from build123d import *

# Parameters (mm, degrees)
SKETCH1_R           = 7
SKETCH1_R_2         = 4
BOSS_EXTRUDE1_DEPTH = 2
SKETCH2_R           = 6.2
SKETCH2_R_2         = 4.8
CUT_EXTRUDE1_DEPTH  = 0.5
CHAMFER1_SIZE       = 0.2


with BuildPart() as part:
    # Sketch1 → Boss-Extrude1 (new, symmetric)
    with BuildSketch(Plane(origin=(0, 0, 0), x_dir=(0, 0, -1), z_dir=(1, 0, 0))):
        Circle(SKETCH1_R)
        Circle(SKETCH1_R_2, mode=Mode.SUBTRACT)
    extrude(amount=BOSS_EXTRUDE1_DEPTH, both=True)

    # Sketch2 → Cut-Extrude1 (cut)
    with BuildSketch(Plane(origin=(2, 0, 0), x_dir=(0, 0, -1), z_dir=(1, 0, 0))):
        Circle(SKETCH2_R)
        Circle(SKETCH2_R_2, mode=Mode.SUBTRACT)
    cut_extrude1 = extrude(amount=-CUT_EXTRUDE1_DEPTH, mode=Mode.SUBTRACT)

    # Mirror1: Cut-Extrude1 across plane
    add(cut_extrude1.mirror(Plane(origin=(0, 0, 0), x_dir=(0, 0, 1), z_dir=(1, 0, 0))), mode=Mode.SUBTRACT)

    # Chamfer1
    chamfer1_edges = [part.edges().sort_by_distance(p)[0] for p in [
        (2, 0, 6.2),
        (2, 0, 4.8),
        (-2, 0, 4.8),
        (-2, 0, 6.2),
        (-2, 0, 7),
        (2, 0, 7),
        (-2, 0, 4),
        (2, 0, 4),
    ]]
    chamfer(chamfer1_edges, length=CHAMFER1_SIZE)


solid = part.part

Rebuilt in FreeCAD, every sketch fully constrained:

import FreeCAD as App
import Part
import Sketcher
Q = App.Units.Quantity


def edges_at(feature, points):
    """Names of the edges that pass closest to the given points."""
    edges = feature.Shape.Edges
    near = lambda p: min(range(len(edges)), key=lambda i: edges[i].distToShape(Part.Vertex(*p))[0])
    return sorted({f"Edge{near(p) + 1}" for p in points})

doc = App.newDocument("Part")
body = doc.addObject("PartDesign::Body", "Body")

# Sketch on YZ plane
sketch1 = body.newObject("Sketcher::SketchObject", "Sketch")
sketch1.AttachmentSupport = (doc.getObject("YZ_Plane"), [""])
sketch1.MapMode = "FlatFace"
sketch1.addGeometry(Part.Circle(App.Vector(0, 0, 0), App.Vector(0, 0, 1), 7), False)
sketch1.addGeometry(Part.Circle(App.Vector(0, 0, 0), App.Vector(0, 0, 1), 4), False)
sketch1.addConstraint(Sketcher.Constraint("Coincident", 0, 3, -1, 1))
sketch1.addConstraint(Sketcher.Constraint("Coincident", 1, 3, -1, 1))
sketch1.addConstraint(Sketcher.Constraint("Diameter", 0, Q("14 mm")))
sketch1.addConstraint(Sketcher.Constraint("Diameter", 1, Q("8 mm")))
pad1 = body.newObject("PartDesign::Pad", "Pad")
pad1.Profile = sketch1
pad1.Length = 4
pad1.Midplane = True

# Sketch on YZ plane
sketch2 = body.newObject("Sketcher::SketchObject", "Sketch001")
sketch2.AttachmentSupport = (doc.getObject("YZ_Plane"), [""])
sketch2.MapMode = "FlatFace"
sketch2.AttachmentOffset = App.Placement(App.Vector(0, 0, 2), App.Rotation())
sketch2.addGeometry(Part.Circle(App.Vector(0, 0, 0), App.Vector(0, 0, 1), 6.2), False)
sketch2.addGeometry(Part.Circle(App.Vector(0, 0, 0), App.Vector(0, 0, 1), 4.8), False)
sketch2.addConstraint(Sketcher.Constraint("Coincident", 0, 3, -1, 1))
sketch2.addConstraint(Sketcher.Constraint("Coincident", 1, 3, -1, 1))
sketch2.addConstraint(Sketcher.Constraint("Diameter", 0, Q("12.4 mm")))
sketch2.addConstraint(Sketcher.Constraint("Diameter", 1, Q("9.6 mm")))
pocket1 = body.newObject("PartDesign::Pocket", "Pocket")
pocket1.Profile = sketch2
pocket1.Length = 0.5
doc.recompute()

mirrored = body.newObject("PartDesign::Mirrored", "Mirrored")
mirrored.Originals = [pocket1]
mirrored.MirrorPlane = (doc.getObject("YZ_Plane"), [""])
body.Tip = mirrored
doc.recompute()

chamfer = body.newObject("PartDesign::Chamfer", "Chamfer")
chamfer.Base = (mirrored, edges_at(mirrored, [
    (2, 0, 6.2),
    (2, 0, 4.8),
    (-2, 0, 4.8),
    (-2, 0, 6.2),
    (-2, 0, 7),
    (2, 0, 7),
    (-2, 0, 4),
    (2, 0, 4),
]))
chamfer.Size = 0.2

doc.recompute()
